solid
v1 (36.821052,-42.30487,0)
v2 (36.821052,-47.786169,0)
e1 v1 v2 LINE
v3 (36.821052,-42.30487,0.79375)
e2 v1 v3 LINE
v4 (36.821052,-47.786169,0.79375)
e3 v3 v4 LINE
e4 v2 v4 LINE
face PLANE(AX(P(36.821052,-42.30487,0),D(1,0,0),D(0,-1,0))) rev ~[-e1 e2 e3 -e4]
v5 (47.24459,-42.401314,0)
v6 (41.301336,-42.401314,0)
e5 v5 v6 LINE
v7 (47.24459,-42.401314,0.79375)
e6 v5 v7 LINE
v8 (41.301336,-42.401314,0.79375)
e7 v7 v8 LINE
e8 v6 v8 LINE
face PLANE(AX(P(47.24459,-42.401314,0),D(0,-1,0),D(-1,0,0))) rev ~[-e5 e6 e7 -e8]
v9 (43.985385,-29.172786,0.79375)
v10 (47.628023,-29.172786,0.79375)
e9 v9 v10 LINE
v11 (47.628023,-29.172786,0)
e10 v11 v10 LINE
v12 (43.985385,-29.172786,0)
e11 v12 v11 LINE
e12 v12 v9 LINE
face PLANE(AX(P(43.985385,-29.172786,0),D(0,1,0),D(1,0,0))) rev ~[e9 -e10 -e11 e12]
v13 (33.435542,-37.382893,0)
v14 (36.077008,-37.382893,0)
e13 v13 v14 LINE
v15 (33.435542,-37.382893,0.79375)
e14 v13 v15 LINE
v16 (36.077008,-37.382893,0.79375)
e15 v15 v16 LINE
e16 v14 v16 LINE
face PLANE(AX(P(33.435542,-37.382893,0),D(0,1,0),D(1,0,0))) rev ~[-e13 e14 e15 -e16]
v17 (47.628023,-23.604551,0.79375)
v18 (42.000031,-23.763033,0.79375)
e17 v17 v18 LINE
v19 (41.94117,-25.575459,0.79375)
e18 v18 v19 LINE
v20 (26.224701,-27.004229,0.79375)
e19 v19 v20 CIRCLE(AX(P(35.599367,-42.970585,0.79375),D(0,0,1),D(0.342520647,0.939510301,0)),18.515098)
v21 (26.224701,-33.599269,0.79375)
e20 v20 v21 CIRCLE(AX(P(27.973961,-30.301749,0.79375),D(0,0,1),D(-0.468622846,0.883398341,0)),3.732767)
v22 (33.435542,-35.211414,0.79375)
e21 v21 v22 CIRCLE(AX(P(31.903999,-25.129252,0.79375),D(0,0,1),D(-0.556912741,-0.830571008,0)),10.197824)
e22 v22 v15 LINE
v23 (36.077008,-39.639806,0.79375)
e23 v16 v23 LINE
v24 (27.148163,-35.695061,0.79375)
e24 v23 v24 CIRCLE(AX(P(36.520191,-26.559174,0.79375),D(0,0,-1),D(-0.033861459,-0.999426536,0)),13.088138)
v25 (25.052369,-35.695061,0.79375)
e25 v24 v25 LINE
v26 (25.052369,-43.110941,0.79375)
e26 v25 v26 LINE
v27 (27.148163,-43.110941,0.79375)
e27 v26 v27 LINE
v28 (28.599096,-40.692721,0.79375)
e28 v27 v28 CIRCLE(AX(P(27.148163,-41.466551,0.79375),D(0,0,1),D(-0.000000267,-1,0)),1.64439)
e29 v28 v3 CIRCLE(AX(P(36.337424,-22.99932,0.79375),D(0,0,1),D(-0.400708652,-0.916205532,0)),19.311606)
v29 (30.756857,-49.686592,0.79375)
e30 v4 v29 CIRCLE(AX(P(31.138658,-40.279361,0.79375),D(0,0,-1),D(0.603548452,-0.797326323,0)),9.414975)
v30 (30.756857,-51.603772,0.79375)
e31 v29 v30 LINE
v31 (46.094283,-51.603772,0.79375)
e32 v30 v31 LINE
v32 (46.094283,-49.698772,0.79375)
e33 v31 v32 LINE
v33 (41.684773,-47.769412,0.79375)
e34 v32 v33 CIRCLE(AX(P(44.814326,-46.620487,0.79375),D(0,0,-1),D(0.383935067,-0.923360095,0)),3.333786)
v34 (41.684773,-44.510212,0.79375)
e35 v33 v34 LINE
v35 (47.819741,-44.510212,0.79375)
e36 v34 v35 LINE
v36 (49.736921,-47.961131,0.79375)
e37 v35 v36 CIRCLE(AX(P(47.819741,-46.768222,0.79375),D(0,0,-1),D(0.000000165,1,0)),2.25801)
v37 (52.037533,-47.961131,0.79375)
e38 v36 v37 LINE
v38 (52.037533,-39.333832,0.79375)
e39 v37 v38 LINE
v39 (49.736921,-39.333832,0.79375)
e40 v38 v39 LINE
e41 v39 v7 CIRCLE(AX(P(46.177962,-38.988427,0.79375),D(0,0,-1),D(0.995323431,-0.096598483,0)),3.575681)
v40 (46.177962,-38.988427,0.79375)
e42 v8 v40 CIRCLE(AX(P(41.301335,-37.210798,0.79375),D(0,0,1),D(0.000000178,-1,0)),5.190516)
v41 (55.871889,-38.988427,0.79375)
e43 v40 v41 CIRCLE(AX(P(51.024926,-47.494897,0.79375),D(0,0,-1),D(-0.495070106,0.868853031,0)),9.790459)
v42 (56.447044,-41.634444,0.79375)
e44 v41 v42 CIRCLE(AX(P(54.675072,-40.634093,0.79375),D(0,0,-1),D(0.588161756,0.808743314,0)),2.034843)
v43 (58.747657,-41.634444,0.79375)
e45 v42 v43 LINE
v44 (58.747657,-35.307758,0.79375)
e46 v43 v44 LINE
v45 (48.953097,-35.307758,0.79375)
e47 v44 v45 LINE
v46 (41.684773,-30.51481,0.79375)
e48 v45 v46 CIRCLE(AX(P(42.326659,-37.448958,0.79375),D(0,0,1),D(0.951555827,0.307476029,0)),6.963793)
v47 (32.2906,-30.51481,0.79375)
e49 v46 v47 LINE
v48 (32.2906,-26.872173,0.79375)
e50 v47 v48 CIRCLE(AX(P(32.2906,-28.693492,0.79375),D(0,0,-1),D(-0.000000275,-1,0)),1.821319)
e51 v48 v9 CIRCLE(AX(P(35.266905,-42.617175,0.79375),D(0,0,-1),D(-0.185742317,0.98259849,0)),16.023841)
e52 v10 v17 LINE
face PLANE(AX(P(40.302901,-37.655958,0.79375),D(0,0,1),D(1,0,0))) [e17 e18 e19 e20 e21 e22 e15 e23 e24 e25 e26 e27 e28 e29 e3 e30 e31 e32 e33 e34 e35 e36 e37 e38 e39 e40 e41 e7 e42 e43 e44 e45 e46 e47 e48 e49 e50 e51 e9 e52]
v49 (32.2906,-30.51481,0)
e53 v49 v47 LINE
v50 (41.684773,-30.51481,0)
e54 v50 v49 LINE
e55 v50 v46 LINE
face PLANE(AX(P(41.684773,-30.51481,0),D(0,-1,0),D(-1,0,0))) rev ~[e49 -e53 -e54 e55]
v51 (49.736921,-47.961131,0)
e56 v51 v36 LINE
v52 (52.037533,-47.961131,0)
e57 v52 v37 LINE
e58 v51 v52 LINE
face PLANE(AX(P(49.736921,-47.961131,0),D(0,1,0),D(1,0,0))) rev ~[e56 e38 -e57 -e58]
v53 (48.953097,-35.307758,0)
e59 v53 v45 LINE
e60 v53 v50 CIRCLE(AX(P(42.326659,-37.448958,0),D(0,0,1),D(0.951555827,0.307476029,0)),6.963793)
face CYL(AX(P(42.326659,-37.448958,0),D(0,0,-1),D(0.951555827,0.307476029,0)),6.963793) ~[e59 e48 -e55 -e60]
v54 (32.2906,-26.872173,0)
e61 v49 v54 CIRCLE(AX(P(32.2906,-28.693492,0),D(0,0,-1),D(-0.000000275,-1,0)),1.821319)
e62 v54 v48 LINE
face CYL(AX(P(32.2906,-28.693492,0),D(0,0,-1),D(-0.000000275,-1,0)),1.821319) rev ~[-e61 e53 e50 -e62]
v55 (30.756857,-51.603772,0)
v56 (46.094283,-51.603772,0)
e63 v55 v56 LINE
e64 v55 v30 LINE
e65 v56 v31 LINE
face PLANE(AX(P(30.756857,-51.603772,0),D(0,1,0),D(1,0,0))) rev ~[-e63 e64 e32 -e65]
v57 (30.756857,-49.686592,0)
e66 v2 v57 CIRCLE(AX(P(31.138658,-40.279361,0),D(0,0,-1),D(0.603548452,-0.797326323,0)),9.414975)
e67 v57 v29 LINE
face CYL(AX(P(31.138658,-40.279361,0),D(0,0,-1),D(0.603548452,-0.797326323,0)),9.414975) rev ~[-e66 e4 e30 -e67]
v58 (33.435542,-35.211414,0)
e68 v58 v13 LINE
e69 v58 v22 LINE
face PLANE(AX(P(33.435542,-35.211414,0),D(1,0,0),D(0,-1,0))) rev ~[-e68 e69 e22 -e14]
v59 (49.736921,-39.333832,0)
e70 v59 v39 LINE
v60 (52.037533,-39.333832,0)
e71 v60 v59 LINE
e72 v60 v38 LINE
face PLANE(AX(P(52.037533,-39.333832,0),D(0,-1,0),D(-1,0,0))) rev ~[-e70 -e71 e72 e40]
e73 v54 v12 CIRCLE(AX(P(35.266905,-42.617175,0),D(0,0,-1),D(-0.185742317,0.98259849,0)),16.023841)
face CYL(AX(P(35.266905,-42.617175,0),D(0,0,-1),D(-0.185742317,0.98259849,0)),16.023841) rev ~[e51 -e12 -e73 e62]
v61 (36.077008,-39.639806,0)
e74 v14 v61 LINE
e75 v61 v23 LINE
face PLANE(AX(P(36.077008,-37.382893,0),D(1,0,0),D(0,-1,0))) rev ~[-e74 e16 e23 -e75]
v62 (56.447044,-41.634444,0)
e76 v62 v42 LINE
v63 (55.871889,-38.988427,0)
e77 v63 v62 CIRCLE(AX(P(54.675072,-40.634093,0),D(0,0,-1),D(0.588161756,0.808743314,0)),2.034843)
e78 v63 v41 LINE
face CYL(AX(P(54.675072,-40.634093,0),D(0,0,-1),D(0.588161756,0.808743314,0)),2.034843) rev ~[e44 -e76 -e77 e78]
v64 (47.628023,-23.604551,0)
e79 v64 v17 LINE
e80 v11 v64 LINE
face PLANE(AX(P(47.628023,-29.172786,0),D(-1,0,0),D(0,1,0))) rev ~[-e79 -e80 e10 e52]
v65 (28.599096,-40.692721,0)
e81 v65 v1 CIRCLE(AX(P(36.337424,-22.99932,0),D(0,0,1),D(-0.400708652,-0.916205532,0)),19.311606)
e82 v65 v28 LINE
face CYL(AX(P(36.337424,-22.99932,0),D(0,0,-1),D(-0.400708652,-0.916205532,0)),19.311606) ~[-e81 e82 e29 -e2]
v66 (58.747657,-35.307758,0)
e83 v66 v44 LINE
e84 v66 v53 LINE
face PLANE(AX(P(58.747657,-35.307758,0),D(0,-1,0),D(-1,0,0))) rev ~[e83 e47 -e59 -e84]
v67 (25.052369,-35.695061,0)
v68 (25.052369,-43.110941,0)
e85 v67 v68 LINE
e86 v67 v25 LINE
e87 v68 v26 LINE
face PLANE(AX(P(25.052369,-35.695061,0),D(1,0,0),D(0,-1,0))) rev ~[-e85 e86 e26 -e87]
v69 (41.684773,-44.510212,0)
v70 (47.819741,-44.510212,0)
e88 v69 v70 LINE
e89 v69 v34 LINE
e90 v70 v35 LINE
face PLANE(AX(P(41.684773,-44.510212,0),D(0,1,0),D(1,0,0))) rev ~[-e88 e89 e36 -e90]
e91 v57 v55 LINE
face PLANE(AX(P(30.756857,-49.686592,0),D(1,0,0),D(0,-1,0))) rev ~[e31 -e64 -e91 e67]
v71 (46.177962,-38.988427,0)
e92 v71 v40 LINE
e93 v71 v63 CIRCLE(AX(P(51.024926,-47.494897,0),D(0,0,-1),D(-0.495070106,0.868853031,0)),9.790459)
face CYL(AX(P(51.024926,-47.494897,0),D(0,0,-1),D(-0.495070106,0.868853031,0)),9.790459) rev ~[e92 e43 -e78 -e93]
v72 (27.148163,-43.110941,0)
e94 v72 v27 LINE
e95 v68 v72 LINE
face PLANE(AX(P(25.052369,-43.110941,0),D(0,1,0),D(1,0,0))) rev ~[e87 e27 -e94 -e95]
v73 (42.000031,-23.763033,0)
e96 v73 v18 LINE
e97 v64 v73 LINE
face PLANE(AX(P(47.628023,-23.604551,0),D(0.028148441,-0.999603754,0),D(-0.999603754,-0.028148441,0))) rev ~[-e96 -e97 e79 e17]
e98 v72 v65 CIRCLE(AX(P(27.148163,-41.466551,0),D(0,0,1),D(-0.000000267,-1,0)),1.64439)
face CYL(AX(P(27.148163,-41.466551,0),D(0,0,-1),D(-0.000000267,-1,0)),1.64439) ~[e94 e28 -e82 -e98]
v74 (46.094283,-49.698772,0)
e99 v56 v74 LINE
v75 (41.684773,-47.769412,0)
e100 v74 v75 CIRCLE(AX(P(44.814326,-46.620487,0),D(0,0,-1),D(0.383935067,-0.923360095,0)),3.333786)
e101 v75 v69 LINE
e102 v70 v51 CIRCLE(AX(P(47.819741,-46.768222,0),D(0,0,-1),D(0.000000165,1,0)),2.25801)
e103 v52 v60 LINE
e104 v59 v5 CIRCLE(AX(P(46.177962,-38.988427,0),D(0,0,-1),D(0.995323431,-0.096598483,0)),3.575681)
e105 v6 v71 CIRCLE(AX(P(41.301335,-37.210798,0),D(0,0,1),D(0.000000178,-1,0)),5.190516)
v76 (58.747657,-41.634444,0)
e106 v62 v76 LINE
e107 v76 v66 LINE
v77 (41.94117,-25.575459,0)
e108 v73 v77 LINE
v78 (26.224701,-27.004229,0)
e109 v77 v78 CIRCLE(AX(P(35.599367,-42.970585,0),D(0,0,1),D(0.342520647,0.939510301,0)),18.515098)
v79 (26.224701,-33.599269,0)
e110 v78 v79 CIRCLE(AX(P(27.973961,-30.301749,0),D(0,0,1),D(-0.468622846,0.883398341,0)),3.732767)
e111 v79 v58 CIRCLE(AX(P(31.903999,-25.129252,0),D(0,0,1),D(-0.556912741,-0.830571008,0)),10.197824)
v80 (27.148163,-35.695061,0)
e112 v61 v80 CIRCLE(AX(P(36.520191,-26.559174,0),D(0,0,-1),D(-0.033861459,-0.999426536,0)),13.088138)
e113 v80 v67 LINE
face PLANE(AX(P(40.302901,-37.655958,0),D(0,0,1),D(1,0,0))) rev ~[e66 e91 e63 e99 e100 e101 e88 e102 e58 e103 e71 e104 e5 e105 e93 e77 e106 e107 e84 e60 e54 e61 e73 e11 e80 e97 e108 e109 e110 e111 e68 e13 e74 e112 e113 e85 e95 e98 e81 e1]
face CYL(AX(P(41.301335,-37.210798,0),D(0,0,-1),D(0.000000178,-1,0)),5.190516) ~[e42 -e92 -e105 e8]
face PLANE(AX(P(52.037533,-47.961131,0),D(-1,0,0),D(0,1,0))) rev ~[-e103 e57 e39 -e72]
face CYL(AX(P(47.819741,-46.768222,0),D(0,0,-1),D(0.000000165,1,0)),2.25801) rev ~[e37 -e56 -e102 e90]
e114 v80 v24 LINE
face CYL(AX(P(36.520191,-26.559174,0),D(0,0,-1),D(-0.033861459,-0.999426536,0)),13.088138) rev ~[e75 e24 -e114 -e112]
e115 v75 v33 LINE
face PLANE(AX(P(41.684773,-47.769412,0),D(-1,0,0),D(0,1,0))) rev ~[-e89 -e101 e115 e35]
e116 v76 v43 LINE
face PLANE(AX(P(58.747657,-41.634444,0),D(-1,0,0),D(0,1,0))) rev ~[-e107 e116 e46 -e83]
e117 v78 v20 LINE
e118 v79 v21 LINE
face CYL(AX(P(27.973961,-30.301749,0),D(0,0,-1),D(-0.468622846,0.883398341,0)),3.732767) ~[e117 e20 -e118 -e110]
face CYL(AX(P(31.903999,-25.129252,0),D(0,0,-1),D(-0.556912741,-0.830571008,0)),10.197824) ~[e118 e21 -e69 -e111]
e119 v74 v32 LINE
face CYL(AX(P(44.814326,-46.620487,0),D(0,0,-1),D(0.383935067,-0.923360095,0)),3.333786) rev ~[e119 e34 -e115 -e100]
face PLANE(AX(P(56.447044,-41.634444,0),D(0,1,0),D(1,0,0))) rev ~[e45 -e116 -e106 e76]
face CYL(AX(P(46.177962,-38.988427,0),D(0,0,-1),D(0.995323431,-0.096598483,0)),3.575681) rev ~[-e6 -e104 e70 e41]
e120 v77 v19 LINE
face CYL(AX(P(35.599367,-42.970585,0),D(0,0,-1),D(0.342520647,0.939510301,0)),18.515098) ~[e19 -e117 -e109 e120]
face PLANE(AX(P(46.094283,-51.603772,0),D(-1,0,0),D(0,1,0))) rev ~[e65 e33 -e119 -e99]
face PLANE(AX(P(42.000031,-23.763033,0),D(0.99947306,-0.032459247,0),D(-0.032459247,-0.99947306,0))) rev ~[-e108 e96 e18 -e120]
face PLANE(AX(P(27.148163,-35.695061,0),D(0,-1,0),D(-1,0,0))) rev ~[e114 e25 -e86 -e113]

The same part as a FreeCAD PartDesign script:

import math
import FreeCAD as App
import Part
import Sketcher
from FreeCAD import Vector
Q = App.Units.Quantity

doc = App.newDocument("Part")
body = doc.addObject("PartDesign::Body", "Body")

# Sketch on XY plane
sketch1 = body.newObject("Sketcher::SketchObject", "Sketch")
sketch1.AttachmentSupport = (doc.getObject("XY_Plane"), [""])
sketch1.MapMode = "FlatFace"
sketch1.addGeometry([
    Part.LineSegment(Vector(42, -23.8, 0), Vector(41.9, -25.6, 0)),  # 0
    Part.ArcOfCircle(Part.Circle(Vector(35.6, -43, 0), Vector(0, 0, 1), 18.5), math.radians(70), math.radians(120)),  # 1
    Part.ArcOfCircle(Part.Circle(Vector(28, -30.3, 0), Vector(0, 0, 1), 3.7), math.radians(118), math.radians(242)),  # 2
    Part.ArcOfCircle(Part.Circle(Vector(31.9, -25.1, 0), Vector(0, 0, 1), 10.2), math.radians(-124), math.radians(-81)),  # 3
    Part.LineSegment(Vector(33.4, -35.2, 0), Vector(33.4, -37.4, 0)),  # 4
    Part.LineSegment(Vector(33.4, -37.4, 0), Vector(36.1, -37.4, 0)),  # 5
    Part.LineSegment(Vector(36.1, -37.4, 0), Vector(36.1, -39.6, 0)),  # 6
    Part.ArcOfCircle(Part.Circle(Vector(36.5, -26.6, 0), Vector(0, 0, 1), 13.1), math.radians(-136), math.radians(-92)),  # 7
    Part.LineSegment(Vector(27.1, -35.7, 0), Vector(25.1, -35.7, 0)),  # 8
    Part.LineSegment(Vector(25.1, -35.7, 0), Vector(25.1, -43.1, 0)),  # 9
    Part.LineSegment(Vector(25.1, -43.1, 0), Vector(27.1, -43.1, 0)),  # 10
    Part.ArcOfCircle(Part.Circle(Vector(27.1, -41.5, 0), Vector(0, 0, 1), 1.6), math.radians(-90), math.radians(28)),  # 11
    Part.ArcOfCircle(Part.Circle(Vector(36.3, -23, 0), Vector(0, 0, 1), 19.3), math.radians(-114), math.radians(-89)),  # 12
    Part.LineSegment(Vector(36.8, -42.3, 0), Vector(36.8, -47.8, 0)),  # 13
    Part.ArcOfCircle(Part.Circle(Vector(31.1, -40.3, 0), Vector(0, 0, 1), 9.4), math.radians(-92), math.radians(-53)),  # 14
    Part.LineSegment(Vector(30.8, -49.7, 0), Vector(30.8, -51.6, 0)),  # 15
    Part.LineSegment(Vector(30.8, -51.6, 0), Vector(46.1, -51.6, 0)),  # 16
    Part.LineSegment(Vector(46.1, -51.6, 0), Vector(46.1, -49.7, 0)),  # 17
    Part.ArcOfCircle(Part.Circle(Vector(44.8, -46.6, 0), Vector(0, 0, 1), 3.3), math.radians(-160), math.radians(-67)),  # 18
    Part.LineSegment(Vector(41.7, -47.8, 0), Vector(41.7, -44.5, 0)),  # 19
    Part.LineSegment(Vector(41.7, -44.5, 0), Vector(47.8, -44.5, 0)),  # 20
    Part.ArcOfCircle(Part.Circle(Vector(47.8, -46.8, 0), Vector(0, 0, 1), 2.3), math.radians(-32), math.radians(90)),  # 21
    Part.LineSegment(Vector(49.7, -48, 0), Vector(52, -48, 0)),  # 22
    Part.LineSegment(Vector(52, -48, 0), Vector(52, -39.3, 0)),  # 23
    Part.LineSegment(Vector(52, -39.3, 0), Vector(49.7, -39.3, 0)),  # 24
    Part.ArcOfCircle(Part.Circle(Vector(46.2, -39, 0), Vector(0, 0, 1), 3.6), math.radians(-73), math.radians(-6)),  # 25
    Part.LineSegment(Vector(47.2, -42.4, 0), Vector(41.3, -42.4, 0)),  # 26
    Part.ArcOfCircle(Part.Circle(Vector(41.3, -37.2, 0), Vector(0, 0, 1), 5.2), math.radians(-90), math.radians(-20)),  # 27
    Part.ArcOfCircle(Part.Circle(Vector(51, -47.5, 0), Vector(0, 0, 1), 9.8), math.radians(60), math.radians(120)),  # 28
    Part.ArcOfCircle(Part.Circle(Vector(54.7, -40.6, 0), Vector(0, 0, 1), 2), math.radians(-29), math.radians(54)),  # 29
    Part.LineSegment(Vector(56.4, -41.6, 0), Vector(58.7, -41.6, 0)),  # 30
    Part.LineSegment(Vector(58.7, -41.6, 0), Vector(58.7, -35.3, 0)),  # 31
    Part.LineSegment(Vector(58.7, -35.3, 0), Vector(49, -35.3, 0)),  # 32
    Part.ArcOfCircle(Part.Circle(Vector(42.3, -37.4, 0), Vector(0, 0, 1), 7), math.radians(18), math.radians(95)),  # 33
    Part.LineSegment(Vector(41.7, -30.5, 0), Vector(32.3, -30.5, 0)),  # 34
    Part.ArcOfCircle(Part.Circle(Vector(32.3, -28.7, 0), Vector(0, 0, 1), 1.8), math.radians(90), math.radians(270)),  # 35
    Part.ArcOfCircle(Part.Circle(Vector(35.3, -42.6, 0), Vector(0, 0, 1), 16), math.radians(57), math.radians(101)),  # 36
    Part.LineSegment(Vector(44, -29.2, 0), Vector(47.6, -29.2, 0)),  # 37
    Part.LineSegment(Vector(47.6, -29.2, 0), Vector(47.6, -23.6, 0)),  # 38
    Part.LineSegment(Vector(47.6, -23.6, 0), Vector(42, -23.8, 0)),  # 39
], False)
sketch1.addConstraint([
    Sketcher.Constraint("Coincident", 0, 2, 1, 1),
    Sketcher.Constraint("Coincident", 1, 2, 2, 1),
    Sketcher.Constraint("Coincident", 2, 2, 3, 1),
    Sketcher.Constraint("Coincident", 3, 2, 4, 1),
    Sketcher.Constraint("Coincident", 4, 2, 5, 1),
    Sketcher.Constraint("Coincident", 5, 2, 6, 1),
    Sketcher.Constraint("Coincident", 6, 2, 7, 2),
    Sketcher.Constraint("Coincident", 7, 1, 8, 1),
    Sketcher.Constraint("Coincident", 8, 2, 9, 1),
    Sketcher.Constraint("Coincident", 9, 2, 10, 1),
    Sketcher.Constraint("Tangent", 10, 2, 11, 1),
    Sketcher.Constraint("Coincident", 11, 2, 12, 1),
    Sketcher.Constraint("Coincident", 12, 2, 13, 1),
    Sketcher.Constraint("Coincident", 13, 2, 14, 2),
    Sketcher.Constraint("Coincident", 14, 1, 15, 1),
    Sketcher.Constraint("Coincident", 15, 2, 16, 1),
    Sketcher.Constraint("Coincident", 16, 2, 17, 1),
    Sketcher.Constraint("Coincident", 17, 2, 18, 2),
    Sketcher.Constraint("Coincident", 18, 1, 19, 1),
    Sketcher.Constraint("Coincident", 19, 2, 20, 1),
    Sketcher.Constraint("Tangent", 20, 2, 21, 2),
    Sketcher.Constraint("Coincident", 21, 1, 22, 1),
    Sketcher.Constraint("Coincident", 22, 2, 23, 1),
    Sketcher.Constraint("Coincident", 23, 2, 24, 1),
    Sketcher.Constraint("Coincident", 24, 2, 25, 2),
    Sketcher.Constraint("Coincident", 25, 1, 26, 1),
    Sketcher.Constraint("Tangent", 26, 2, 27, 1),
    Sketcher.Constraint("Coincident", 27, 2, 28, 2),
    Sketcher.Constraint("Coincident", 28, 1, 29, 2),
    Sketcher.Constraint("Coincident", 29, 1, 30, 1),
    Sketcher.Constraint("Coincident", 30, 2, 31, 1),
    Sketcher.Constraint("Coincident", 31, 2, 32, 1),
    Sketcher.Constraint("Coincident", 32, 2, 33, 1),
    Sketcher.Constraint("Coincident", 33, 2, 34, 1),
    Sketcher.Constraint("Tangent", 34, 2, 35, 2),
    Sketcher.Constraint("Coincident", 35, 1, 36, 2),
    Sketcher.Constraint("Coincident", 36, 1, 37, 1),
    Sketcher.Constraint("Coincident", 37, 2, 38, 1),
    Sketcher.Constraint("Coincident", 38, 2, 39, 1),
    Sketcher.Constraint("Coincident", 39, 2, 0, 1),
    Sketcher.Constraint("Vertical", 4),
    Sketcher.Constraint("Horizontal", 5),
    Sketcher.Constraint("Vertical", 6),
    Sketcher.Constraint("Horizontal", 8),
    Sketcher.Constraint("Vertical", 9),
    Sketcher.Constraint("Horizontal", 10),
    Sketcher.Constraint("Vertical", 13),
    Sketcher.Constraint("Vertical", 15),
    Sketcher.Constraint("Horizontal", 16),
    Sketcher.Constraint("Vertical", 17),
    Sketcher.Constraint("Vertical", 19),
    Sketcher.Constraint("Horizontal", 20),
    Sketcher.Constraint("Horizontal", 22),
    Sketcher.Constraint("Vertical", 23),
    Sketcher.Constraint("Horizontal", 24),
    Sketcher.Constraint("Horizontal", 26),
    Sketcher.Constraint("Horizontal", 30),
    Sketcher.Constraint("Vertical", 31),
    Sketcher.Constraint("Horizontal", 32),
    Sketcher.Constraint("Horizontal", 34),
    Sketcher.Constraint("Horizontal", 37),
    Sketcher.Constraint("Vertical", 38),
    Sketcher.Constraint("Coincident", 27, 2, 25, 3),
    Sketcher.Constraint("Horizontal", 27, 2, 28, 1),
    Sketcher.Constraint("Vertical", 1, 2, 2, 2),
    Sketcher.Constraint("Vertical", 11, 3, 7, 1),
    Sketcher.Constraint("Vertical", 21, 1, 24, 2),
    Sketcher.Constraint("Vertical", 19, 2, 33, 2),
    Sketcher.Constraint("Vertical", 34, 2, 35, 1),
    Sketcher.Constraint("Equal", 24, 30),
    Sketcher.Constraint("DistanceY", 17, 1, 17, 2, Q("0.075 in")),
    Sketcher.Constraint("Radius", 1, 18.515098),
    Sketcher.Constraint("Radius", 11, 1.64439),
    Sketcher.Constraint("Radius", 21, 2.25801),
    Sketcher.Constraint("Radius", 25, 3.575681),
    Sketcher.Constraint("Radius", 28, 9.790459),
    Sketcher.Constraint("Radius", 35, 1.821319),
    Sketcher.Constraint("Radius", 36, 16.023841),
    Sketcher.Constraint("DistanceY", 13, 2, 13, 1, 5.481299),
    Sketcher.Constraint("DistanceY", 19, 1, 19, 2, 3.2592),
    Sketcher.Constraint("DistanceY", 23, 1, 23, 2, 8.627299),
    Sketcher.Constraint("DistanceX", -1, 1, 14, 1, Q("1.2108999 in")),
    Sketcher.Constraint("DistanceX", -1, 1, 30, 2, Q("2.3128999 in")),
    Sketcher.Constraint("Radius", 2, 3.732767),
    Sketcher.Constraint("Radius", 3, 10.197824),
    Sketcher.Constraint("Radius", 7, 13.088138),
    Sketcher.Constraint("Radius", 12, 19.311606),
    Sketcher.Constraint("Radius", 14, 9.414975),
    Sketcher.Constraint("Radius", 18, 3.333786),
    Sketcher.Constraint("Radius", 27, 5.190516),
    Sketcher.Constraint("Radius", 29, 2.034843),
    Sketcher.Constraint("Radius", 33, 6.963793),
    Sketcher.Constraint("DistanceY", 21, 3, 33, 3, Q("0.3669002 in")),
    Sketcher.Constraint("DistanceY", 36, 3, 11, 3, Q("0.0453002 in")),
    Sketcher.Constraint("DistanceX", 20, 1, 20, 2, 6.134968),
    Sketcher.Constraint("DistanceX", 32, 2, 32, 1, 9.79456),
    Sketcher.Constraint("DistanceY", 4, 2, 4, 1, 2.171479),
    Sketcher.Constraint("DistanceY", 9, 2, 9, 1, 7.41588),
    Sketcher.Constraint("DistanceY", 15, 2, 15, 1, 1.91718),
    Sketcher.Constraint("DistanceX", -1, 1, 3, 3, 31.903999),
    Sketcher.Constraint("DistanceY", 27, 3, -1, 1, 37.210798),
    Sketcher.Constraint("DistanceX", -1, 1, 35, 3, 32.2906),
    Sketcher.Constraint("DistanceX", -1, 1, 1, 2, 26.224701),
    Sketcher.Constraint("DistanceY", 11, 3, 3, 3, 16.337299),
    Sketcher.Constraint("DistanceX", 18, 3, 28, 3, 6.2106),
    Sketcher.Constraint("DistanceY", 28, 3, 27, 3, 10.284099),
    Sketcher.Constraint("DistanceY", 14, 3, 7, 1, 4.5843),
    Sketcher.Constraint("DistanceY", 19, 2, 26, 2, 2.108898),
    Sketcher.Constraint("DistanceX", 25, 1, 28, 1, 8.627299),
    Sketcher.Constraint("DistanceY", 33, 3, 32, 2, 2.1412),
    Sketcher.Constraint("DistanceY", 35, 1, 7, 3, 0.312999),
    Sketcher.Constraint("DistanceX", 12, 3, 38, 2, 11.290599),
    Sketcher.Constraint("Distance", 0, 1.813382),
    Sketcher.Constraint("DistanceX", 5, 1, 5, 2, 2.641466),
    Sketcher.Constraint("DistanceX", 8, 2, 8, 1, 2.095794),
    Sketcher.Constraint("DistanceX", 16, 1, 16, 2, 15.337426),
    Sketcher.Constraint("DistanceX", 22, 1, 22, 2, 2.300612),
    Sketcher.Constraint("DistanceX", 34, 2, 34, 1, 9.394173),
    Sketcher.Constraint("DistanceX", 37, 1, 37, 2, 3.642638),
    Sketcher.Constraint("DistanceY", 6, 2, 6, 1, 2.256913),
    Sketcher.Constraint("DistanceY", 31, 1, 31, 2, 6.326686),
    Sketcher.Constraint("DistanceY", 38, 1, 38, 2, 5.568235),
    Sketcher.Constraint("DistanceX", -1, 1, 2, 3, 27.973961),
    Sketcher.Constraint("DistanceY", 2, 3, -1, 1, 30.301749),
    Sketcher.Constraint("DistanceX", -1, 1, 7, 3, 36.520191),
    Sketcher.Constraint("DistanceY", 12, 3, -1, 1, 22.99932),
    Sketcher.Constraint("DistanceX", -1, 1, 14, 3, 31.138658),
    Sketcher.Constraint("DistanceX", -1, 1, 0, 2, 41.94117),
    Sketcher.Constraint("DistanceY", 0, 2, -1, 1, 25.575459),
    Sketcher.Constraint("DistanceY", 11, 2, -1, 1, 40.692721),
    Sketcher.Constraint("DistanceX", -1, 1, 39, 2, 42.000031),
])
pad1 = body.newObject("PartDesign::Pad", "Pad")
pad1.Profile = sketch1
pad1.Length = Q("0.03125 in")

doc.recompute()
